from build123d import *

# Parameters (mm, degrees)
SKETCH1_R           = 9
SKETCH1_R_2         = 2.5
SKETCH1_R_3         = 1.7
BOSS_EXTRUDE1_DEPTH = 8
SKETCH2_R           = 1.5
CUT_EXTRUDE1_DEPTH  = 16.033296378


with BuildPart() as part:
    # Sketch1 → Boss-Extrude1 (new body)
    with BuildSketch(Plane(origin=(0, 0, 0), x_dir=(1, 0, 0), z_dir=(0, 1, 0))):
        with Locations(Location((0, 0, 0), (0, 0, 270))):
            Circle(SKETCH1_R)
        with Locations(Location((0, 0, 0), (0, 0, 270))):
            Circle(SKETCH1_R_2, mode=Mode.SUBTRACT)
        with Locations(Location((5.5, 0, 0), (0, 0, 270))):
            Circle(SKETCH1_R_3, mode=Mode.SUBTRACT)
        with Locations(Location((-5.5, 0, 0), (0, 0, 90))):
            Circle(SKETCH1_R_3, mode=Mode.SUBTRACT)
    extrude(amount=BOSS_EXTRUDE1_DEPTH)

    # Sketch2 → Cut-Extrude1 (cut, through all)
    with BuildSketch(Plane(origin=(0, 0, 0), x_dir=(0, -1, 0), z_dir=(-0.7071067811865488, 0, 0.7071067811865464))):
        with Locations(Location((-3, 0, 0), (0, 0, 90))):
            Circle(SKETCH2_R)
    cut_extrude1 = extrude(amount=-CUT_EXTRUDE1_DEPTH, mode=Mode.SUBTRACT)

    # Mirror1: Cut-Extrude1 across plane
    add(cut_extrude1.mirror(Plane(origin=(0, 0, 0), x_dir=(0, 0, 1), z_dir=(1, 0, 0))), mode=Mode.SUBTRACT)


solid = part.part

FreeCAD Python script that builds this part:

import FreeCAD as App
import Part
import Sketcher

doc = App.newDocument("Part")
body = doc.addObject("PartDesign::Body", "Body")

sketch1 = body.newObject("Sketcher::SketchObject", "Sketch")
sketch1.AttachmentSupport = (doc.getObject("XZ_Plane"), [""])
sketch1.MapMode = "FlatFace"
sketch1.addGeometry([
    Part.Circle(App.Vector(0, 0, 0), App.Vector(0, 0, 1), 9),
    Part.Circle(App.Vector(-5.5, 0, 0), App.Vector(0, 0, 1), 1.7),
    Part.Circle(App.Vector(5.5, 0, 0), App.Vector(0, 0, 1), 1.7),
    Part.Circle(App.Vector(0, 0, 0), App.Vector(0, 0, 1), 2.5),
], False)
sketch1.addConstraint([
    Sketcher.Constraint("Coincident", 0, 3, -1, 1),
    Sketcher.Constraint("Coincident", 3, 3, -1, 1),
    Sketcher.Constraint("Equal", 1, 2),
    Sketcher.Constraint("Symmetric", 1, 3, 2, 3, -1, 1),
    Sketcher.Constraint("PointOnObject", 1, 3, -1),
    Sketcher.Constraint("Diameter", 0, 18.0),
    Sketcher.Constraint("Diameter", 3, 5.0),
    Sketcher.Constraint("Diameter", 1, 3.4),
    Sketcher.Constraint("DistanceX", 1, 3, 2, 3, 11.0),
])
pad1 = body.newObject("PartDesign::Pad", "Pad")
pad1.Profile = sketch1
pad1.Length = 8
pad1.Reversed = True

sketch2 = body.newObject("Sketcher::SketchObject", "Sketch001")
sketch2.Placement = App.Placement(App.Vector(0, 0, 0), App.Rotation(App.Vector(0, -1, 0), App.Vector(0.707106781, 0, 0.707106781), App.Vector(-0.707106781, 0, 0.707106781), "ZXY"))
sketch2.addGeometry(Part.Circle(App.Vector(-3, 0, 0), App.Vector(0, 0, 1), 1.5), False)
sketch2.addConstraint([
    Sketcher.Constraint("PointOnObject", 0, 3, -1),
    Sketcher.Constraint("Diameter", 0, 3.0),
    Sketcher.Constraint("DistanceX", 0, 3, -1, 1, 3.0),
])
pocket1 = body.newObject("PartDesign::Pocket", "Pocket")
pocket1.Profile = sketch2
pocket1.Type = "ThroughAll"
doc.recompute()

mirrored = body.newObject("PartDesign::Mirrored", "Mirrored")
mirrored.Originals = [pocket1]
mirrored.MirrorPlane = (doc.getObject("YZ_Plane"), [""])
body.Tip = mirrored

doc.recompute()
